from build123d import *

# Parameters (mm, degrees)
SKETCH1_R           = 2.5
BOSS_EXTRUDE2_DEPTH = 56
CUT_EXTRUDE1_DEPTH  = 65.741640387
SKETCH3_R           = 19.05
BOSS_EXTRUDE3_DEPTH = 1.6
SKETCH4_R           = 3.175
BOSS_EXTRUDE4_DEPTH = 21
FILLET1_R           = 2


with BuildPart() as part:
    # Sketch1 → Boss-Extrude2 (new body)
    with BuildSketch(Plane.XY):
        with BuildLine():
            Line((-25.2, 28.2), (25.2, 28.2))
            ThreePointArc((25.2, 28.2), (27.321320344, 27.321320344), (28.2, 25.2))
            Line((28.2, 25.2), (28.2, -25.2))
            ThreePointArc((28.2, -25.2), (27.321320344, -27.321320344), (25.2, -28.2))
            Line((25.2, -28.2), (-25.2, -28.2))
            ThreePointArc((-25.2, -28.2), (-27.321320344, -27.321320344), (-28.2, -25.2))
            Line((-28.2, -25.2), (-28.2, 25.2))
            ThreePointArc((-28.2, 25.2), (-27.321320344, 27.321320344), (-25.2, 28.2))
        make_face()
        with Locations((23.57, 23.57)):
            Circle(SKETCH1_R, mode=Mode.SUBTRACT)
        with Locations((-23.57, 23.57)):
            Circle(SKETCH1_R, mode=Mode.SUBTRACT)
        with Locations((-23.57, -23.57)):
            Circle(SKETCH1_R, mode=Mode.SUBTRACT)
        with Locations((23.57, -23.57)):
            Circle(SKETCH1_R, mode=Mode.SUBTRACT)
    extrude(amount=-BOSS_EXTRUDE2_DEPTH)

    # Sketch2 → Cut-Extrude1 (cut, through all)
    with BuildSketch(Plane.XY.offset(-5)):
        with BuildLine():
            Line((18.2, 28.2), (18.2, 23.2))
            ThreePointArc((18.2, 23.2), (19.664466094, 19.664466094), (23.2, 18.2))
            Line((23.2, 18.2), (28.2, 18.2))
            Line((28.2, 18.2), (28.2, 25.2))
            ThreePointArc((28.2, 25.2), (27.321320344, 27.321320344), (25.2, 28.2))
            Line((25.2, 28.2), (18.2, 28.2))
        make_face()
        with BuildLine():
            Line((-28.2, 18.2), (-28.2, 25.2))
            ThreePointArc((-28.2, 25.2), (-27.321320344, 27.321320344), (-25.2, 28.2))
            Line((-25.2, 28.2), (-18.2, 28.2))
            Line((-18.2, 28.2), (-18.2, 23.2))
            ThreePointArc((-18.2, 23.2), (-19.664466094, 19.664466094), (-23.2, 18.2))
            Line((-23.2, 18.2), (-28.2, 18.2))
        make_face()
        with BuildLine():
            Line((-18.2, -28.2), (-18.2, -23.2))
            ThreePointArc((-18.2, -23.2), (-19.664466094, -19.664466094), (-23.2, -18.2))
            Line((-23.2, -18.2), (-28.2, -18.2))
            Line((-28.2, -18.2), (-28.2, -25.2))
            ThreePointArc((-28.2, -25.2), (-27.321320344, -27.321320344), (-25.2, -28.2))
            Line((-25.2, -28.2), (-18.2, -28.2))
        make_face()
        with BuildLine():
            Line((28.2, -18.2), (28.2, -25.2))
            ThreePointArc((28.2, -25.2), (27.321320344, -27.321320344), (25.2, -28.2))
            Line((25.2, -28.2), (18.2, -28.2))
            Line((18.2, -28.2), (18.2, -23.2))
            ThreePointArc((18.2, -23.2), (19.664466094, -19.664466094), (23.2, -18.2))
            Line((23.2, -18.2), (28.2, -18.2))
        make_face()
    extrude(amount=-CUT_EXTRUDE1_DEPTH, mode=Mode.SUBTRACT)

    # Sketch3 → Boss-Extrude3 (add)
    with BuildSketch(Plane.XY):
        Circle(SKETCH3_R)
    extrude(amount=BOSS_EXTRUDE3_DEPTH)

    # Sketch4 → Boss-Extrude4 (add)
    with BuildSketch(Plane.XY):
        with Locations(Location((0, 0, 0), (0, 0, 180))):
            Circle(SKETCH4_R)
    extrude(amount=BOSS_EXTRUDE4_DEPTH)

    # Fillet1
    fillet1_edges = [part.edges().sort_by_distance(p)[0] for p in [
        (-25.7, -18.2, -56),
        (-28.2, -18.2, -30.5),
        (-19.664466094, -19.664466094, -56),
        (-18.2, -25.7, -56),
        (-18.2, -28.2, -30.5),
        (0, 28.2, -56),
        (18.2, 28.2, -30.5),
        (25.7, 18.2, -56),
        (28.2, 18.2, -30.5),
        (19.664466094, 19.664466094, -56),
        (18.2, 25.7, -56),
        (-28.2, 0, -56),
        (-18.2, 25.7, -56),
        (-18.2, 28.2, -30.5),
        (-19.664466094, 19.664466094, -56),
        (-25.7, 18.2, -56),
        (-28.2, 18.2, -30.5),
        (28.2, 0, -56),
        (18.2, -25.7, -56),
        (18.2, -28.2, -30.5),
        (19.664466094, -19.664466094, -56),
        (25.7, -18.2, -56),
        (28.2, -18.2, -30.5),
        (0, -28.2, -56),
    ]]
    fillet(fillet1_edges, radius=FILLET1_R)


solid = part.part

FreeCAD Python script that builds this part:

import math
import FreeCAD as App
import Part
import Sketcher
from FreeCAD import Vector


def edges_at(feature, points):
    """Names of the edges that pass closest to the given points."""
    edges = feature.Shape.Edges
    near = lambda p: min(range(len(edges)), key=lambda i: edges[i].distToShape(Part.Vertex(*p))[0])
    return sorted({f"Edge{near(p) + 1}" for p in points})

doc = App.newDocument("Part")
body = doc.addObject("PartDesign::Body", "Body")

# Sketch on XY plane
sketch1 = body.newObject("Sketcher::SketchObject", "Sketch")
sketch1.AttachmentSupport = (doc.getObject("XY_Plane"), [""])
sketch1.MapMode = "FlatFace"
sketch1.addGeometry(Part.LineSegment(Vector(25.2, 28.2, 0), Vector(-25.2, 28.2, 0)), False)
sketch1.addGeometry(Part.ArcOfCircle(Part.Circle(Vector(-25.2, 25.2, 0), Vector(0, 0, 1), 3), math.radians(90), math.radians(180)), False)
sketch1.addGeometry(Part.LineSegment(Vector(-28.2, 25.2, 0), Vector(-28.2, -25.2, 0)), False)
sketch1.addGeometry(Part.ArcOfCircle(Part.Circle(Vector(-25.2, -25.2, 0), Vector(0, 0, 1), 3), math.radians(180), math.radians(270)), False)
sketch1.addGeometry(Part.LineSegment(Vector(-25.2, -28.2, 0), Vector(25.2, -28.2, 0)), False)
sketch1.addGeometry(Part.ArcOfCircle(Part.Circle(Vector(25.2, -25.2, 0), Vector(0, 0, 1), 3), math.radians(-90), math.radians(0)), False)
sketch1.addGeometry(Part.LineSegment(Vector(28.2, -25.2, 0), Vector(28.2, 25.2, 0)), False)
sketch1.addGeometry(Part.ArcOfCircle(Part.Circle(Vector(25.2, 25.2, 0), Vector(0, 0, 1), 3), math.radians(0), math.radians(90)), False)
sketch1.addGeometry(Part.Circle(Vector(23.6, -23.6, 0), Vector(0, 0, 1), 2.5), False)
sketch1.addGeometry(Part.Circle(Vector(-23.6, -23.6, 0), Vector(0, 0, 1), 2.5), False)
sketch1.addGeometry(Part.Circle(Vector(23.6, 23.6, 0), Vector(0, 0, 1), 2.5), False)
sketch1.addGeometry(Part.Circle(Vector(-23.6, 23.6, 0), Vector(0, 0, 1), 2.5), False)
sketch1.addConstraint(Sketcher.Constraint("Tangent", 0, 2, 1, 1))
sketch1.addConstraint(Sketcher.Constraint("Tangent", 1, 2, 2, 1))
sketch1.addConstraint(Sketcher.Constraint("Tangent", 2, 2, 3, 1))
sketch1.addConstraint(Sketcher.Constraint("Tangent", 3, 2, 4, 1))
sketch1.addConstraint(Sketcher.Constraint("Tangent", 4, 2, 5, 1))
sketch1.addConstraint(Sketcher.Constraint("Tangent", 5, 2, 6, 1))
sketch1.addConstraint(Sketcher.Constraint("Tangent", 6, 2, 7, 1))
sketch1.addConstraint(Sketcher.Constraint("Tangent", 7, 2, 0, 1))
sketch1.addConstraint(Sketcher.Constraint("Horizontal", 0))
sketch1.addConstraint(Sketcher.Constraint("Vertical", 2))
sketch1.addConstraint(Sketcher.Constraint("Horizontal", 4))
sketch1.addConstraint(Sketcher.Constraint("Vertical", 6))
sketch1.addConstraint(Sketcher.Constraint("Equal", 1, 3))
sketch1.addConstraint(Sketcher.Constraint("Equal", 3, 5))
sketch1.addConstraint(Sketcher.Constraint("Equal", 5, 7))
sketch1.addConstraint(Sketcher.Constraint("Equal", 8, 9))
sketch1.addConstraint(Sketcher.Constraint("Equal", 9, 10))
sketch1.addConstraint(Sketcher.Constraint("Equal", 10, 11))
sketch1.addConstraint(Sketcher.Constraint("Symmetric", 1, 3, 5, 3, -1, 1))
sketch1.addConstraint(Sketcher.Constraint("Symmetric", 9, 3, 10, 3, -1, 1))
sketch1.addConstraint(Sketcher.Constraint("Symmetric", 8, 3, 11, 3, -1, 1))
sketch1.addConstraint(Sketcher.Constraint("Symmetric", 8, 3, 9, 3, -2))
sketch1.addConstraint(Sketcher.Constraint("Equal", 4, 2))
sketch1.addConstraint(Sketcher.Constraint("Diameter", 8, 5.0))
sketch1.addConstraint(Sketcher.Constraint("Radius", 1, 3.0))
sketch1.addConstraint(Sketcher.Constraint("DistanceX", 0, 2, 0, 1, 50.4))
sketch1.addConstraint(Sketcher.Constraint("DistanceX", -1, 1, 8, 3, 23.57))
sketch1.addConstraint(Sketcher.Constraint("DistanceY", 8, 3, -1, 1, 23.57))
pad1 = body.newObject("PartDesign::Pad", "Pad")
pad1.Profile = sketch1
pad1.Length = 56
pad1.Reversed = True

# Sketch on XY plane
sketch2 = body.newObject("Sketcher::SketchObject", "Sketch001")
sketch2.AttachmentSupport = (doc.getObject("XY_Plane"), [""])
sketch2.MapMode = "FlatFace"
sketch2.AttachmentOffset = App.Placement(Vector(0, 0, -5), App.Rotation())
sketch2.addGeometry(Part.LineSegment(Vector(18.2, 28.2, 0), Vector(18.2, 23.2, 0)), False)
sketch2.addGeometry(Part.ArcOfCircle(Part.Circle(Vector(23.2, 23.2, 0), Vector(0, 0, 1), 5), math.radians(180), math.radians(270)), False)
sketch2.addGeometry(Part.LineSegment(Vector(23.2, 18.2, 0), Vector(28.2, 18.2, 0)), False)
sketch2.addGeometry(Part.LineSegment(Vector(28.2, 18.2, 0), Vector(28.2, 25.2, 0)), False)
sketch2.addGeometry(Part.ArcOfCircle(Part.Circle(Vector(25.2, 25.2, 0), Vector(0, 0, 1), 3), math.radians(0), math.radians(90)), False)
sketch2.addGeometry(Part.LineSegment(Vector(25.2, 28.2, 0), Vector(18.2, 28.2, 0)), False)
sketch2.addGeometry(Part.LineSegment(Vector(-28.2, 25.2, 0), Vector(-28.2, 18.2, 0)), False)
sketch2.addGeometry(Part.LineSegment(Vector(-28.2, 18.2, 0), Vector(-23.2, 18.2, 0)), False)
sketch2.addGeometry(Part.ArcOfCircle(Part.Circle(Vector(-23.2, 23.2, 0), Vector(0, 0, 1), 5), math.radians(-90), math.radians(0)), False)
sketch2.addGeometry(Part.LineSegment(Vector(-18.2, 23.2, 0), Vector(-18.2, 28.2, 0)), False)
sketch2.addGeometry(Part.LineSegment(Vector(-18.2, 28.2, 0), Vector(-25.2, 28.2, 0)), False)
sketch2.addGeometry(Part.ArcOfCircle(Part.Circle(Vector(-25.2, 25.2, 0), Vector(0, 0, 1), 3), math.radians(90), math.radians(180)), False)
sketch2.addGeometry(Part.LineSegment(Vector(-18.2, -28.2, 0), Vector(-18.2, -23.2, 0)), False)
sketch2.addGeometry(Part.ArcOfCircle(Part.Circle(Vector(-23.2, -23.2, 0), Vector(0, 0, 1), 5), math.radians(0), math.radians(90)), False)
sketch2.addGeometry(Part.LineSegment(Vector(-23.2, -18.2, 0), Vector(-28.2, -18.2, 0)), False)
sketch2.addGeometry(Part.LineSegment(Vector(-28.2, -18.2, 0), Vector(-28.2, -25.2, 0)), False)
sketch2.addGeometry(Part.ArcOfCircle(Part.Circle(Vector(-25.2, -25.2, 0), Vector(0, 0, 1), 3), math.radians(180), math.radians(270)), False)
sketch2.addGeometry(Part.LineSegment(Vector(-25.2, -28.2, 0), Vector(-18.2, -28.2, 0)), False)
sketch2.addGeometry(Part.LineSegment(Vector(28.2, -25.2, 0), Vector(28.2, -18.2, 0)), False)
sketch2.addGeometry(Part.LineSegment(Vector(28.2, -18.2, 0), Vector(23.2, -18.2, 0)), False)
sketch2.addGeometry(Part.ArcOfCircle(Part.Circle(Vector(23.2, -23.2, 0), Vector(0, 0, 1), 5), math.radians(90), math.radians(180)), False)
sketch2.addGeometry(Part.LineSegment(Vector(18.2, -23.2, 0), Vector(18.2, -28.2, 0)), False)
sketch2.addGeometry(Part.LineSegment(Vector(18.2, -28.2, 0), Vector(25.2, -28.2, 0)), False)
sketch2.addGeometry(Part.ArcOfCircle(Part.Circle(Vector(25.2, -25.2, 0), Vector(0, 0, 1), 3), math.radians(-90), math.radians(0)), False)
sketch2.addConstraint(Sketcher.Constraint("Tangent", 0, 2, 1, 1))
sketch2.addConstraint(Sketcher.Constraint("Tangent", 1, 2, 2, 1))
sketch2.addConstraint(Sketcher.Constraint("Coincident", 2, 2, 3, 1))
sketch2.addConstraint(Sketcher.Constraint("Tangent", 3, 2, 4, 1))
sketch2.addConstraint(Sketcher.Constraint("Tangent", 4, 2, 5, 1))
sketch2.addConstraint(Sketcher.Constraint("Coincident", 5, 2, 0, 1))
sketch2.addConstraint(Sketcher.Constraint("Coincident", 6, 2, 7, 1))
sketch2.addConstraint(Sketcher.Constraint("Tangent", 7, 2, 8, 1))
sketch2.addConstraint(Sketcher.Constraint("Tangent", 8, 2, 9, 1))
sketch2.addConstraint(Sketcher.Constraint("Coincident", 9, 2, 10, 1))
sketch2.addConstraint(Sketcher.Constraint("Tangent", 10, 2, 11, 1))
sketch2.addConstraint(Sketcher.Constraint("Tangent", 11, 2, 6, 1))
sketch2.addConstraint(Sketcher.Constraint("Tangent", 12, 2, 13, 1))
sketch2.addConstraint(Sketcher.Constraint("Tangent", 13, 2, 14, 1))
sketch2.addConstraint(Sketcher.Constraint("Coincident", 14, 2, 15, 1))
sketch2.addConstraint(Sketcher.Constraint("Tangent", 15, 2, 16, 1))
sketch2.addConstraint(Sketcher.Constraint("Tangent", 16, 2, 17, 1))
sketch2.addConstraint(Sketcher.Constraint("Coincident", 17, 2, 12, 1))
sketch2.addConstraint(Sketcher.Constraint("Coincident", 18, 2, 19, 1))
sketch2.addConstraint(Sketcher.Constraint("Tangent", 19, 2, 20, 1))
sketch2.addConstraint(Sketcher.Constraint("Tangent", 20, 2, 21, 1))
sketch2.addConstraint(Sketcher.Constraint("Coincident", 21, 2, 22, 1))
sketch2.addConstraint(Sketcher.Constraint("Tangent", 22, 2, 23, 1))
sketch2.addConstraint(Sketcher.Constraint("Tangent", 23, 2, 18, 1))
sketch2.addConstraint(Sketcher.Constraint("Vertical", 0))
sketch2.addConstraint(Sketcher.Constraint("Horizontal", 2))
sketch2.addConstraint(Sketcher.Constraint("Vertical", 3))
sketch2.addConstraint(Sketcher.Constraint("Horizontal", 5))
sketch2.addConstraint(Sketcher.Constraint("Vertical", 6))
sketch2.addConstraint(Sketcher.Constraint("Horizontal", 7))
sketch2.addConstraint(Sketcher.Constraint("Vertical", 9))
sketch2.addConstraint(Sketcher.Constraint("Horizontal", 10))
sketch2.addConstraint(Sketcher.Constraint("Vertical", 12))
sketch2.addConstraint(Sketcher.Constraint("Horizontal", 14))
sketch2.addConstraint(Sketcher.Constraint("Vertical", 15))
sketch2.addConstraint(Sketcher.Constraint("Horizontal", 17))
sketch2.addConstraint(Sketcher.Constraint("Vertical", 18))
sketch2.addConstraint(Sketcher.Constraint("Horizontal", 19))
sketch2.addConstraint(Sketcher.Constraint("Vertical", 21))
sketch2.addConstraint(Sketcher.Constraint("Horizontal", 22))
sketch2.addConstraint(Sketcher.Constraint("Equal", 1, 8))
sketch2.addConstraint(Sketcher.Constraint("Equal", 4, 11))
sketch2.addConstraint(Sketcher.Constraint("Equal", 8, 13))
sketch2.addConstraint(Sketcher.Constraint("Equal", 11, 16))
sketch2.addConstraint(Sketcher.Constraint("Equal", 13, 20))
sketch2.addConstraint(Sketcher.Constraint("Equal", 16, 23))
sketch2.addConstraint(Sketcher.Constraint("Symmetric", 1, 3, 13, 3, -1, 1))
sketch2.addConstraint(Sketcher.Constraint("Symmetric", 4, 3, 16, 3, -1, 1))
sketch2.addConstraint(Sketcher.Constraint("Symmetric", 8, 3, 20, 3, -1, 1))
sketch2.addConstraint(Sketcher.Constraint("Symmetric", 11, 3, 23, 3, -1, 1))
sketch2.addConstraint(Sketcher.Constraint("Symmetric", 1, 3, 8, 3, -2))
sketch2.addConstraint(Sketcher.Constraint("Symmetric", 4, 3, 11, 3, -2))
sketch2.addConstraint(Sketcher.Constraint("Equal", 19, 0))
sketch2.addConstraint(Sketcher.Constraint("Radius", 1, 5.0))
sketch2.addConstraint(Sketcher.Constraint("Radius", 4, 3.0))
sketch2.addConstraint(Sketcher.Constraint("DistanceX", 2, 1, 2, 2, 5.0))
sketch2.addConstraint(Sketcher.Constraint("DistanceX", -1, 1, 1, 3, 23.2))
sketch2.addConstraint(Sketcher.Constraint("DistanceY", -1, 1, 1, 3, 23.2))
pocket1 = body.newObject("PartDesign::Pocket", "Pocket")
pocket1.Profile = sketch2
pocket1.Type = "ThroughAll"

# Sketch on XY plane
sketch3 = body.newObject("Sketcher::SketchObject", "Sketch002")
sketch3.AttachmentSupport = (doc.getObject("XY_Plane"), [""])
sketch3.MapMode = "FlatFace"
sketch3.addGeometry(Part.Circle(Vector(0, 0, 0), Vector(0, 0, 1), 19), False)
sketch3.addConstraint(Sketcher.Constraint("Coincident", 0, 3, -1, 1))
sketch3.addConstraint(Sketcher.Constraint("Diameter", 0, 38.1))
pad2 = body.newObject("PartDesign::Pad", "Pad001")
pad2.Profile = sketch3
pad2.Length = 1.6

# Sketch on XY plane
sketch4 = body.newObject("Sketcher::SketchObject", "Sketch003")
sketch4.AttachmentSupport = (doc.getObject("XY_Plane"), [""])
sketch4.MapMode = "FlatFace"
sketch4.addGeometry(Part.Circle(Vector(0, 0, 0), Vector(0, 0, 1), 3.2), False)
sketch4.addConstraint(Sketcher.Constraint("Coincident", 0, 3, -1, 1))
sketch4.addConstraint(Sketcher.Constraint("Diameter", 0, 6.35))
pad3 = body.newObject("PartDesign::Pad", "Pad002")
pad3.Profile = sketch4
pad3.Length = 21
doc.recompute()

fillet = body.newObject("PartDesign::Fillet", "Fillet")
fillet.Base = (pad3, edges_at(pad3, [
    (-25.7, -18.2, -56),
    (-28.2, -18.2, -30.5),
    (-19.664, -19.664, -56),
    (-18.2, -25.7, -56),
    (-18.2, -28.2, -30.5),
    (0, 28.2, -56),
    (18.2, 28.2, -30.5),
    (25.7, 18.2, -56),
    (28.2, 18.2, -30.5),
    (19.664, 19.664, -56),
    (18.2, 25.7, -56),
    (-28.2, 0, -56),
    (-18.2, 25.7, -56),
    (-18.2, 28.2, -30.5),
    (-19.664, 19.664, -56),
    (-25.7, 18.2, -56),
    (-28.2, 18.2, -30.5),
    (28.2, 0, -56),
    (18.2, -25.7, -56),
    (18.2, -28.2, -30.5),
    (19.664, -19.664, -56),
    (25.7, -18.2, -56),
    (28.2, -18.2, -30.5),
    (0, -28.2, -56),
]))
fillet.Radius = 2

doc.recompute()
